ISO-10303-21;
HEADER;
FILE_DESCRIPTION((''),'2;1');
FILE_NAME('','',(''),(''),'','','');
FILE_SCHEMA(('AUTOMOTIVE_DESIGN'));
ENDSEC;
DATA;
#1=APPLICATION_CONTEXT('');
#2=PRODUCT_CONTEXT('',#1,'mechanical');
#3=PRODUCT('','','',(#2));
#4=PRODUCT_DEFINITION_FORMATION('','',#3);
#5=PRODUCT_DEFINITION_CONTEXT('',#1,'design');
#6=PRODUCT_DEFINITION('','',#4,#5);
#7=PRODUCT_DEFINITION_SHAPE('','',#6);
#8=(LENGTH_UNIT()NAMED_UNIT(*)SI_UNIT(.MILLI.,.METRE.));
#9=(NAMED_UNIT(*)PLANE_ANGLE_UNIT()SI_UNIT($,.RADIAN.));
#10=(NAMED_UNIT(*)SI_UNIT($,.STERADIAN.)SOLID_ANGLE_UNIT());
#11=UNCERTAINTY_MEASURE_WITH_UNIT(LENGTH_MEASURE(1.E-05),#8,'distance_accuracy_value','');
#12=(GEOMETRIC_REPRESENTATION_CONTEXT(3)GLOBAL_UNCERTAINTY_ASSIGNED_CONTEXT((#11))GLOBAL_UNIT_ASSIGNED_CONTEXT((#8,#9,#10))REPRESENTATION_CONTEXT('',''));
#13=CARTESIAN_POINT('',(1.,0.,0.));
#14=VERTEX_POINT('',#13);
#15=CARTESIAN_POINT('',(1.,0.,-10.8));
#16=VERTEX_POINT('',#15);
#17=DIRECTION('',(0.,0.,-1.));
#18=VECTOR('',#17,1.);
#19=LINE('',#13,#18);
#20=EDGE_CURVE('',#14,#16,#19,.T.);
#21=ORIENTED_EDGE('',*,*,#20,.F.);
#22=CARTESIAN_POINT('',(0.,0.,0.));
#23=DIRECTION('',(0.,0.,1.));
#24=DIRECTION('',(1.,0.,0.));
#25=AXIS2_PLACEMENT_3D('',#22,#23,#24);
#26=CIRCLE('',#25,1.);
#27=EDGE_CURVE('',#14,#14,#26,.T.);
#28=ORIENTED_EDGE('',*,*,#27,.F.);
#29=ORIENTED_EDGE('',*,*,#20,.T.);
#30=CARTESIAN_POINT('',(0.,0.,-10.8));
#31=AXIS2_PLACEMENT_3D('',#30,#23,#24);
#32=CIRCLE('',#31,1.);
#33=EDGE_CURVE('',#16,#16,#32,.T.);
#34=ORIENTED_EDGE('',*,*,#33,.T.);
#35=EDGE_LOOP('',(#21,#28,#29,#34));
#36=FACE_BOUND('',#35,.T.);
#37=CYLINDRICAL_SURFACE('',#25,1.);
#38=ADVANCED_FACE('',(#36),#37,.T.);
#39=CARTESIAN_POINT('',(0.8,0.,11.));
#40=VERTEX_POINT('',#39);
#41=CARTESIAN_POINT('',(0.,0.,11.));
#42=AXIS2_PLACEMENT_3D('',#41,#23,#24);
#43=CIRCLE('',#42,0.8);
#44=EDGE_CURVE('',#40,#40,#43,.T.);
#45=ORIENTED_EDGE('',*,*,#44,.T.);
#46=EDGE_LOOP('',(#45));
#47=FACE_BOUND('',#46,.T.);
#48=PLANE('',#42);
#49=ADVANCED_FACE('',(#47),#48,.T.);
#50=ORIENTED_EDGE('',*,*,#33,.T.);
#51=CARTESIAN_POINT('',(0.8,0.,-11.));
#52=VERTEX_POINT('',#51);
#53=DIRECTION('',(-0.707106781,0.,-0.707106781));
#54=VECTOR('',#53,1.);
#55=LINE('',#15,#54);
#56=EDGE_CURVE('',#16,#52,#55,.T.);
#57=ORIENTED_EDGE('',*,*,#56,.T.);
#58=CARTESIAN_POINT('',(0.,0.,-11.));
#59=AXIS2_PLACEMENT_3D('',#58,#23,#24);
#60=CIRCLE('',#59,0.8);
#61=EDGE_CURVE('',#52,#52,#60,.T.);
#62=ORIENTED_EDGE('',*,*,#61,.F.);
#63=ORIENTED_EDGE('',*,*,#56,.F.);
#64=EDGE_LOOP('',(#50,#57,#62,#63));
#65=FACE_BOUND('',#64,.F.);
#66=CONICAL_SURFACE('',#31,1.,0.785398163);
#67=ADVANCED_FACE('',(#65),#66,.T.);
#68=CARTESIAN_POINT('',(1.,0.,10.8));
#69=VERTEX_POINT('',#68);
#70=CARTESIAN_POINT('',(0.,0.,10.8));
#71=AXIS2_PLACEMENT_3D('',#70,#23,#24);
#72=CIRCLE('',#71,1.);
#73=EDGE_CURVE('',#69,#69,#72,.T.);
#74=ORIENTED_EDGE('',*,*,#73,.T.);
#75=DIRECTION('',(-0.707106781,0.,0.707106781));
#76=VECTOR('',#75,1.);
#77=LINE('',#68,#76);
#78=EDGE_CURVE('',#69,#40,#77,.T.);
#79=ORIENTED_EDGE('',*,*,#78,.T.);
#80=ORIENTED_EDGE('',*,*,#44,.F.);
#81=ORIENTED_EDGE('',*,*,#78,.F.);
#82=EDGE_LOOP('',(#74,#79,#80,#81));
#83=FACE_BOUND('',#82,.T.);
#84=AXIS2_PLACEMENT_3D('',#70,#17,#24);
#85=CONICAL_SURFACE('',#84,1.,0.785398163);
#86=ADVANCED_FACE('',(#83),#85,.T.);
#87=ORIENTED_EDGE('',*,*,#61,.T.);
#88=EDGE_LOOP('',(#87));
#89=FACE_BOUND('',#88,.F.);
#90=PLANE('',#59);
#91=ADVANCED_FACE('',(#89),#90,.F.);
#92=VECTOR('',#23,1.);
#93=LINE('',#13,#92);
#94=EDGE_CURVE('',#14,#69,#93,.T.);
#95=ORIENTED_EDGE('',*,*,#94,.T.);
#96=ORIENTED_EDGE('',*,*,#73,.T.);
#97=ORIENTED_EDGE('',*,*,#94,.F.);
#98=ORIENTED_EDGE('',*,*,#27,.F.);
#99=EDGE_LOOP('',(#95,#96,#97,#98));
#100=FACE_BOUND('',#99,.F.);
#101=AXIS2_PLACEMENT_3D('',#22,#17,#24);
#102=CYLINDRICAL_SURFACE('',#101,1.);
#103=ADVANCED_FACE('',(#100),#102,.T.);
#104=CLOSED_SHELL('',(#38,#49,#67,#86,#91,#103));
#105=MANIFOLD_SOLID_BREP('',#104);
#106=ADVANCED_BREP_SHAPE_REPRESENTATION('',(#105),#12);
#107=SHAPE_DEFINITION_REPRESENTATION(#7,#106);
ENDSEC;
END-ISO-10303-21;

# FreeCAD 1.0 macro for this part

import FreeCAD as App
import Part
import Sketcher
from FreeCAD import Vector


def edges_at(feature, points):
    """Names of the edges that pass closest to the given points."""
    edges = feature.Shape.Edges
    near = lambda p: min(range(len(edges)), key=lambda i: edges[i].distToShape(Part.Vertex(*p))[0])
    return sorted({f"Edge{near(p) + 1}" for p in points})

doc = App.newDocument("Part")
params = doc.addObject("Spreadsheet::Sheet", "Params")
for row, (alias, value) in enumerate([
    ("sketch1_diameter", "2 mm"),
    ("pad1_length", "22 mm"),
    ("chamfer_size", "0.2 mm"),
], start=1):
    params.set(f"A{row}", alias)
    params.set(f"B{row}", "=" + value)
    params.setAlias(f"B{row}", alias)

body = doc.addObject("PartDesign::Body", "Body")

sketch1 = body.newObject("Sketcher::SketchObject", "Sketch")
sketch1.AttachmentSupport = (doc.getObject("XY_Plane"), [""])
sketch1.MapMode = "FlatFace"
sketch1.addGeometry(Part.Circle(Vector(0, 0, 0), Vector(0, 0, 1), 1), False)
sketch1.addConstraint([
    Sketcher.Constraint("Coincident", 0, 3, -1, 1),
    Sketcher.Constraint("Diameter", 0, 2.0),
])
sketch1.setExpression("Constraints[1]", "Params.sketch1_diameter")
pad1 = body.newObject("PartDesign::Pad", "Pad")
pad1.Profile = sketch1
pad1.setExpression("Length", "Params.pad1_length")
pad1.Midplane = True
doc.recompute()

chamfer = body.newObject("PartDesign::Chamfer", "Chamfer")
chamfer.Base = (pad1, edges_at(pad1, [(-1, 0, 11), (-1, 0, -11)]))
chamfer.setExpression("Size", "Params.chamfer_size")

doc.recompute()
